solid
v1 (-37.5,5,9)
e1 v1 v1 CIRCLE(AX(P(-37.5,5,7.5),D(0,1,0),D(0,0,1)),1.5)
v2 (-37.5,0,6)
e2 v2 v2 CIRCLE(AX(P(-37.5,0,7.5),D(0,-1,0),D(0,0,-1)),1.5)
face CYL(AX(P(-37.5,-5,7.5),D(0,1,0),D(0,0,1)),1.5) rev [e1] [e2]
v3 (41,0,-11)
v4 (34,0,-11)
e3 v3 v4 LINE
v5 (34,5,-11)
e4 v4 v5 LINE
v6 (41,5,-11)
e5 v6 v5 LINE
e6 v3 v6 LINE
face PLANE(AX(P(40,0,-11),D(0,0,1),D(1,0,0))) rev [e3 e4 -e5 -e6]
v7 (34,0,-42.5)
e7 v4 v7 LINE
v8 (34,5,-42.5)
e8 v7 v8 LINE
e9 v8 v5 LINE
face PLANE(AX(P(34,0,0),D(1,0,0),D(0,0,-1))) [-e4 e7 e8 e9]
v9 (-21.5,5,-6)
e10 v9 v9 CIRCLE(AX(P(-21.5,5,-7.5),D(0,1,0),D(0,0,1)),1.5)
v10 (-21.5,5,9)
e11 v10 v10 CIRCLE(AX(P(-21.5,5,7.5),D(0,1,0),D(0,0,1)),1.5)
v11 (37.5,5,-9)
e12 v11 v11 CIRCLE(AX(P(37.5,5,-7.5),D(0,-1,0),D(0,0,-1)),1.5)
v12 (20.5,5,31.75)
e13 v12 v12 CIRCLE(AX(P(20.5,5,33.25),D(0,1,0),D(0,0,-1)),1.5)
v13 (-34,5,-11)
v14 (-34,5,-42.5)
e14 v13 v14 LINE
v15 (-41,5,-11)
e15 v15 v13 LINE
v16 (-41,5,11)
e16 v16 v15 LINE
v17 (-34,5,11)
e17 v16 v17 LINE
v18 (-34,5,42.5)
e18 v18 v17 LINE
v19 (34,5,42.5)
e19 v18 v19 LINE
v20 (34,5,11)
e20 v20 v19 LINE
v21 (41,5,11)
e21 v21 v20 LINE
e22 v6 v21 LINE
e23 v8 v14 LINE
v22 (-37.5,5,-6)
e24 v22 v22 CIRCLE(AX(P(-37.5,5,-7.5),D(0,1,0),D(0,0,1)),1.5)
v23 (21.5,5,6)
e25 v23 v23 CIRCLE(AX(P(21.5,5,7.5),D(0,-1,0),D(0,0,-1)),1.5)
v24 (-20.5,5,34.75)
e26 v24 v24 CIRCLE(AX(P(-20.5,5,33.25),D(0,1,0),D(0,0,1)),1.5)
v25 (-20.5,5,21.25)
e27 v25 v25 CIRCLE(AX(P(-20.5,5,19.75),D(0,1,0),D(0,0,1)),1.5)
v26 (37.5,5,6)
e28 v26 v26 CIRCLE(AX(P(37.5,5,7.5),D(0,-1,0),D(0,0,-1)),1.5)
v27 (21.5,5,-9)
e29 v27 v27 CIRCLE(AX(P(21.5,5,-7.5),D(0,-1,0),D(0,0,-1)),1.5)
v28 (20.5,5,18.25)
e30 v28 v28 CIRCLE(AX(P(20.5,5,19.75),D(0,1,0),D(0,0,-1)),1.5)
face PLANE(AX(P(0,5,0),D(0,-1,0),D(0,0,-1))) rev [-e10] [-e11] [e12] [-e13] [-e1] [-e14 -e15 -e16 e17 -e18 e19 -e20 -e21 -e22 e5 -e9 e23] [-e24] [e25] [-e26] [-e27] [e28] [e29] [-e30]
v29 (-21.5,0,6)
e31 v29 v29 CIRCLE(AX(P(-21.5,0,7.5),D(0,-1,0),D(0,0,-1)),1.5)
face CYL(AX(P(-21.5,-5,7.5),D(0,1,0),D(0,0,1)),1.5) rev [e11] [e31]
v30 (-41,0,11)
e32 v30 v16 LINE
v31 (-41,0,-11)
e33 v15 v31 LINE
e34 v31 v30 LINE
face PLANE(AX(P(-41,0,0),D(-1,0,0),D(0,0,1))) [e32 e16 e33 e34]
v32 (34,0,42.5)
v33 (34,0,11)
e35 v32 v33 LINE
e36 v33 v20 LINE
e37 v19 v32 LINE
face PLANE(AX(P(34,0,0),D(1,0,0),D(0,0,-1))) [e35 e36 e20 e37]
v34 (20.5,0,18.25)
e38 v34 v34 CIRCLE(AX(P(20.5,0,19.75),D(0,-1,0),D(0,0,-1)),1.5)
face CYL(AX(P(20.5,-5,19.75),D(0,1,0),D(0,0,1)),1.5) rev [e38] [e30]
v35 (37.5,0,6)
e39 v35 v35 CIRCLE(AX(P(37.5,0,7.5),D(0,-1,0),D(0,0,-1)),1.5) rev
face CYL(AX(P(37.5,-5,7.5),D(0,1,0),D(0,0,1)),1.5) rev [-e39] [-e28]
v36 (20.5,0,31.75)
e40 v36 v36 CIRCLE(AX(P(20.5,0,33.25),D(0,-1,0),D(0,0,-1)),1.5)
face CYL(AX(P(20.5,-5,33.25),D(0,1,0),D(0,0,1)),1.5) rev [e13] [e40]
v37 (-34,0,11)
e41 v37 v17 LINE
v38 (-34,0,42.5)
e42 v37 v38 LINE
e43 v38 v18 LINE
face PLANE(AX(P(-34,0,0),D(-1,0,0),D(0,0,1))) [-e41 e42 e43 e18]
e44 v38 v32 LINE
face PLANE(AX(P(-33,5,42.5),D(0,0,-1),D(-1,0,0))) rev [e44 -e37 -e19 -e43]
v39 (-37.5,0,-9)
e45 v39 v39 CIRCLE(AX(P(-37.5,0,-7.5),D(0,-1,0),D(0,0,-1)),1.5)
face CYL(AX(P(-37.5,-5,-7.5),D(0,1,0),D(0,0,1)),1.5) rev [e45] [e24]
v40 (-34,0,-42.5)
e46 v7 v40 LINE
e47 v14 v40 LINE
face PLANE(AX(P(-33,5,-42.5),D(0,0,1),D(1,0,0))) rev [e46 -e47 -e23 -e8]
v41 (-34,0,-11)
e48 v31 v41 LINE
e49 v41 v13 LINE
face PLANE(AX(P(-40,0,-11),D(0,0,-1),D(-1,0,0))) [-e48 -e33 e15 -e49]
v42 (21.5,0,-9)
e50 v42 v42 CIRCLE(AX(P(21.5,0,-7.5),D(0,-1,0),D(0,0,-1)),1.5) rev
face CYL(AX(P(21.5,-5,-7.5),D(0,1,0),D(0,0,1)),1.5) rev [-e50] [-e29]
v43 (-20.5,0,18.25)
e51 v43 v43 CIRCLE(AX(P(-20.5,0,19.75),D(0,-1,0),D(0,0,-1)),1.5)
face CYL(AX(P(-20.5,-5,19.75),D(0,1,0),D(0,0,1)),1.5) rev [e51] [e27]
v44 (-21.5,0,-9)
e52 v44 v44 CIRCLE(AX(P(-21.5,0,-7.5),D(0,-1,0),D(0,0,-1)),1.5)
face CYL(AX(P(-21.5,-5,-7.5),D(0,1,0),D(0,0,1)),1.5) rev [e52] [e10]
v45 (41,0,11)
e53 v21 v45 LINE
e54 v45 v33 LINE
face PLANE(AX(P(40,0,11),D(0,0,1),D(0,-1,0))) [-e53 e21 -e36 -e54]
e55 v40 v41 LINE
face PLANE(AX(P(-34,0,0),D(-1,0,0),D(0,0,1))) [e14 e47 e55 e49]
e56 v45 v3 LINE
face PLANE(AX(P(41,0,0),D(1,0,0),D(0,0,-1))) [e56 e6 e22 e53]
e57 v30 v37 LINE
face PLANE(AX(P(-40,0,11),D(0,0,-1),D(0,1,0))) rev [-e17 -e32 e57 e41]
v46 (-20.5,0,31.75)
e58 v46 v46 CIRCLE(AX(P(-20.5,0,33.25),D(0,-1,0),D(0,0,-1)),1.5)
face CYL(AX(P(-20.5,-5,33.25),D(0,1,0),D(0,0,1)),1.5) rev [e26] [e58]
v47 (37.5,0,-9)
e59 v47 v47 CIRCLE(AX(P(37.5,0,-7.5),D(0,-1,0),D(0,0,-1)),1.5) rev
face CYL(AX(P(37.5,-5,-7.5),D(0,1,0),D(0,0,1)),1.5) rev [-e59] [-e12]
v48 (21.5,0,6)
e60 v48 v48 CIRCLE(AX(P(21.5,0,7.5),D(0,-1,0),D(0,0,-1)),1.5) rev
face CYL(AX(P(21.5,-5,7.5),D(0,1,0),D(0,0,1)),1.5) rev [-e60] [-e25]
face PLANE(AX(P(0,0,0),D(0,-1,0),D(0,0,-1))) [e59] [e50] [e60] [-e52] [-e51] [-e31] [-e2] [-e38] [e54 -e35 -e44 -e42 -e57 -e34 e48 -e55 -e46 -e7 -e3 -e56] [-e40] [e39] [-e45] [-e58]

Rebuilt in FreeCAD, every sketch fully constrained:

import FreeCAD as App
import Part
import Sketcher

V = App.Vector

doc = App.newDocument("Part")
params = doc.addObject("Spreadsheet::Sheet", "Params")
for row, (alias, value) in enumerate([
    ("sketch1_width", "66 mm"),
    ("sketch1_height", "85 mm"),
    ("pad1_length", "5 mm"),
    ("sketch2_width", "5 mm"),
    ("sketch2_height", "22 mm"),
    ("pad2_length", "7 mm"),
    ("sketch3_diameter", "3 mm"),
    ("pocket1_length", "10 mm"),
    ("sketch4_width", "5 mm"),
    ("sketch4_height", "22 mm"),
    ("pad3_length", "1 mm"),
    ("sketch5_width", "5 mm"),
    ("sketch5_height", "22 mm"),
    ("pad4_length", "1 mm"),
    ("sketch6_width", "5 mm"),
    ("sketch6_height", "85 mm"),
    ("pad5_length", "1 mm"),
    ("sketch7_width", "5 mm"),
    ("sketch7_height", "85 mm"),
    ("pad6_length", "1 mm"),
    ("sketch8_diameter", "3 mm"),
    ("pocket2_length", "10 mm"),
], start=1):
    params.set(f"A{row}", alias)
    params.set(f"B{row}", "=" + value)
    params.setAlias(f"B{row}", alias)

body = doc.addObject("PartDesign::Body", "Body")

sketch1 = doc.addObject("Sketcher::SketchObject", "Sketch")
body.addObject(sketch1)
sketch1.AttachmentSupport = (doc.XZ_Plane, [""])
sketch1.MapMode = "FlatFace"
sketch1.addGeometry(Part.LineSegment(V(-33, -42.5, 0), V(-33, 42.5, 0)), False)
sketch1.addGeometry(Part.LineSegment(V(-33, 42.5, 0), V(33, 42.5, 0)), False)
sketch1.addGeometry(Part.LineSegment(V(33, 42.5, 0), V(33, -42.5, 0)), False)
sketch1.addGeometry(Part.LineSegment(V(33, -42.5, 0), V(-33, -42.5, 0)), False)
sketch1.addConstraint(Sketcher.Constraint("Coincident", 0, 2, 1, 1))
sketch1.addConstraint(Sketcher.Constraint("Coincident", 1, 2, 2, 1))
sketch1.addConstraint(Sketcher.Constraint("Coincident", 2, 2, 3, 1))
sketch1.addConstraint(Sketcher.Constraint("Coincident", 3, 2, 0, 1))
sketch1.addConstraint(Sketcher.Constraint("Vertical", 0))
sketch1.addConstraint(Sketcher.Constraint("Horizontal", 1))
sketch1.addConstraint(Sketcher.Constraint("Vertical", 2))
sketch1.addConstraint(Sketcher.Constraint("Horizontal", 3))
sketch1.addConstraint(Sketcher.Constraint("Symmetric", 0, 2, 2, 2, -1, 1))
sketch1.addConstraint(Sketcher.Constraint("DistanceX", 1, 1, 1, 2, 66.0))
sketch1.addConstraint(Sketcher.Constraint("DistanceY", 0, 1, 0, 2, 85.0))
sketch1.setExpression("Constraints[9]", "Params.sketch1_width")
sketch1.setExpression("Constraints[10]", "Params.sketch1_height")
pad1 = doc.addObject("PartDesign::Pad", "Pad")
body.addObject(pad1)
pad1.Profile = sketch1
pad1.setExpression("Length", "Params.pad1_length")
pad1.Reversed = True

sketch2 = doc.addObject("Sketcher::SketchObject", "Sketch001")
body.addObject(sketch2)
sketch2.AttachmentSupport = (doc.YZ_Plane, [""])
sketch2.MapMode = "FlatFace"
sketch2.AttachmentOffset = App.Placement(V(0, 0, -33), App.Rotation())
sketch2.addGeometry(Part.LineSegment(V(5, -11, 0), V(0, -11, 0)), False)
sketch2.addGeometry(Part.LineSegment(V(0, -11, 0), V(0, 11, 0)), False)
sketch2.addGeometry(Part.LineSegment(V(0, 11, 0), V(5, 11, 0)), False)
sketch2.addGeometry(Part.LineSegment(V(5, 11, 0), V(5, -11, 0)), False)
sketch2.addConstraint(Sketcher.Constraint("Coincident", 0, 2, 1, 1))
sketch2.addConstraint(Sketcher.Constraint("Coincident", 1, 2, 2, 1))
sketch2.addConstraint(Sketcher.Constraint("Coincident", 2, 2, 3, 1))
sketch2.addConstraint(Sketcher.Constraint("Coincident", 3, 2, 0, 1))
sketch2.addConstraint(Sketcher.Constraint("Horizontal", 0))
sketch2.addConstraint(Sketcher.Constraint("Vertical", 1))
sketch2.addConstraint(Sketcher.Constraint("Horizontal", 2))
sketch2.addConstraint(Sketcher.Constraint("Vertical", 3))
sketch2.addConstraint(Sketcher.Constraint("Symmetric", 0, 2, 1, 2, -1, 1))
sketch2.addConstraint(Sketcher.Constraint("DistanceX", 0, 2, 0, 1, 5.0))
sketch2.addConstraint(Sketcher.Constraint("DistanceY", 1, 1, 1, 2, 22.0))
sketch2.setExpression("Constraints[9]", "Params.sketch2_width")
sketch2.setExpression("Constraints[10]", "Params.sketch2_height")
pad2 = doc.addObject("PartDesign::Pad", "Pad001")
body.addObject(pad2)
pad2.Profile = sketch2
pad2.setExpression("Length", "Params.pad2_length")
pad2.Reversed = True
doc.recompute()

mirrored = doc.addObject("PartDesign::Mirrored", "Mirrored")
body.addObject(mirrored)
mirrored.Originals = [pad2]
mirrored.MirrorPlane = (doc.YZ_Plane, [""])
body.Tip = mirrored

sketch3 = doc.addObject("Sketcher::SketchObject", "Sketch002")
body.addObject(sketch3)
sketch3.AttachmentSupport = (doc.XZ_Plane, [""])
sketch3.MapMode = "FlatFace"
sketch3.AttachmentOffset = App.Placement(V(0, 0, -5), App.Rotation())
sketch3.addGeometry(Part.Circle(V(-37.5, -7.5, 0), V(0, 0, 1), 1.5), False)
sketch3.addGeometry(Part.Circle(V(-21.5, -7.5, 0), V(0, 0, 1), 1.5), False)
sketch3.addGeometry(Part.Circle(V(-37.5, 7.5, 0), V(0, 0, 1), 1.5), False)
sketch3.addGeometry(Part.Circle(V(-21.5, 7.5, 0), V(0, 0, 1), 1.5), False)
sketch3.addGeometry(Part.Circle(V(21.5, 7.5, 0), V(0, 0, 1), 1.5), False)
sketch3.addGeometry(Part.Circle(V(37.5, 7.5, 0), V(0, 0, 1), 1.5), False)
sketch3.addGeometry(Part.Circle(V(21.5, -7.5, 0), V(0, 0, 1), 1.5), False)
sketch3.addGeometry(Part.Circle(V(37.5, -7.5, 0), V(0, 0, 1), 1.5), False)
sketch3.addConstraint(Sketcher.Constraint("Equal", 0, 1))
sketch3.addConstraint(Sketcher.Constraint("Equal", 1, 2))
sketch3.addConstraint(Sketcher.Constraint("Equal", 2, 3))
sketch3.addConstraint(Sketcher.Constraint("Equal", 3, 4))
sketch3.addConstraint(Sketcher.Constraint("Equal", 4, 5))
sketch3.addConstraint(Sketcher.Constraint("Equal", 5, 6))
sketch3.addConstraint(Sketcher.Constraint("Equal", 6, 7))
sketch3.addConstraint(Sketcher.Constraint("Symmetric", 1, 3, 4, 3, -1, 1))
sketch3.addConstraint(Sketcher.Constraint("Symmetric", 0, 3, 5, 3, -1, 1))
sketch3.addConstraint(Sketcher.Constraint("Symmetric", 3, 3, 6, 3, -1, 1))
sketch3.addConstraint(Sketcher.Constraint("Symmetric", 2, 3, 7, 3, -1, 1))
sketch3.addConstraint(Sketcher.Constraint("Symmetric", 3, 3, 4, 3, -2))
sketch3.addConstraint(Sketcher.Constraint("Symmetric", 2, 3, 5, 3, -2))
sketch3.addConstraint(Sketcher.Constraint("Horizontal", 0, 3, 1, 3))
sketch3.addConstraint(Sketcher.Constraint("Diameter", 0, 3.0))
sketch3.addConstraint(Sketcher.Constraint("DistanceX", 0, 3, 1, 3, 16.0))
sketch3.addConstraint(Sketcher.Constraint("DistanceY", 0, 3, 2, 3, 15.0))
sketch3.addConstraint(Sketcher.Constraint("DistanceX", 3, 3, 4, 3, 43.0))
sketch3.setExpression("Constraints[14]", "Params.sketch3_diameter")
pocket1 = doc.addObject("PartDesign::Pocket", "Pocket")
body.addObject(pocket1)
pocket1.Profile = sketch3
pocket1.setExpression("Length", "Params.pocket1_length")
pocket1.Reversed = True

sketch4 = doc.addObject("Sketcher::SketchObject", "Sketch003")
body.addObject(sketch4)
sketch4.AttachmentSupport = (doc.YZ_Plane, [""])
sketch4.MapMode = "FlatFace"
sketch4.AttachmentOffset = App.Placement(V(0, 0, -40), App.Rotation())
sketch4.addGeometry(Part.LineSegment(V(5, -11, 0), V(0, -11, 0)), False)
sketch4.addGeometry(Part.LineSegment(V(0, -11, 0), V(0, 11, 0)), False)
sketch4.addGeometry(Part.LineSegment(V(0, 11, 0), V(5, 11, 0)), False)
sketch4.addGeometry(Part.LineSegment(V(5, 11, 0), V(5, -11, 0)), False)
sketch4.addConstraint(Sketcher.Constraint("Coincident", 0, 2, 1, 1))
sketch4.addConstraint(Sketcher.Constraint("Coincident", 1, 2, 2, 1))
sketch4.addConstraint(Sketcher.Constraint("Coincident", 2, 2, 3, 1))
sketch4.addConstraint(Sketcher.Constraint("Coincident", 3, 2, 0, 1))
sketch4.addConstraint(Sketcher.Constraint("Horizontal", 0))
sketch4.addConstraint(Sketcher.Constraint("Vertical", 1))
sketch4.addConstraint(Sketcher.Constraint("Horizontal", 2))
sketch4.addConstraint(Sketcher.Constraint("Vertical", 3))
sketch4.addConstraint(Sketcher.Constraint("Symmetric", 0, 2, 1, 2, -1, 1))
sketch4.addConstraint(Sketcher.Constraint("DistanceX", 0, 2, 0, 1, 5.0))
sketch4.addConstraint(Sketcher.Constraint("DistanceY", 1, 1, 1, 2, 22.0))
sketch4.setExpression("Constraints[9]", "Params.sketch4_width")
sketch4.setExpression("Constraints[10]", "Params.sketch4_height")
pad3 = doc.addObject("PartDesign::Pad", "Pad002")
body.addObject(pad3)
pad3.Profile = sketch4
pad3.setExpression("Length", "Params.pad3_length")
pad3.Reversed = True

sketch5 = doc.addObject("Sketcher::SketchObject", "Sketch004")
body.addObject(sketch5)
sketch5.AttachmentSupport = (doc.YZ_Plane, [""])
sketch5.MapMode = "FlatFace"
sketch5.AttachmentOffset = App.Placement(V(0, 0, 40), App.Rotation())
sketch5.addGeometry(Part.LineSegment(V(5, 11, 0), V(0, 11, 0)), False)
sketch5.addGeometry(Part.LineSegment(V(0, 11, 0), V(0, -11, 0)), False)
sketch5.addGeometry(Part.LineSegment(V(0, -11, 0), V(5, -11, 0)), False)
sketch5.addGeometry(Part.LineSegment(V(5, -11, 0), V(5, 11, 0)), False)
sketch5.addConstraint(Sketcher.Constraint("Coincident", 0, 2, 1, 1))
sketch5.addConstraint(Sketcher.Constraint("Coincident", 1, 2, 2, 1))
sketch5.addConstraint(Sketcher.Constraint("Coincident", 2, 2, 3, 1))
sketch5.addConstraint(Sketcher.Constraint("Coincident", 3, 2, 0, 1))
sketch5.addConstraint(Sketcher.Constraint("Horizontal", 0))
sketch5.addConstraint(Sketcher.Constraint("Vertical", 1))
sketch5.addConstraint(Sketcher.Constraint("Horizontal", 2))
sketch5.addConstraint(Sketcher.Constraint("Vertical", 3))
sketch5.addConstraint(Sketcher.Constraint("Symmetric", 0, 2, 1, 2, -1, 1))
sketch5.addConstraint(Sketcher.Constraint("DistanceX", 0, 2, 0, 1, 5.0))
sketch5.addConstraint(Sketcher.Constraint("DistanceY", 1, 2, 1, 1, 22.0))
sketch5.setExpression("Constraints[9]", "Params.sketch5_width")
sketch5.setExpression("Constraints[10]", "Params.sketch5_height")
pad4 = doc.addObject("PartDesign::Pad", "Pad003")
body.addObject(pad4)
pad4.Profile = sketch5
pad4.setExpression("Length", "Params.pad4_length")

sketch6 = doc.addObject("Sketcher::SketchObject", "Sketch005")
body.addObject(sketch6)
sketch6.AttachmentSupport = (doc.YZ_Plane, [""])
sketch6.MapMode = "FlatFace"
sketch6.AttachmentOffset = App.Placement(V(0, 0, -33), App.Rotation())
sketch6.addGeometry(Part.LineSegment(V(5, -42.5, 0), V(0, -42.5, 0)), False)
sketch6.addGeometry(Part.LineSegment(V(0, -42.5, 0), V(0, 42.5, 0)), False)
sketch6.addGeometry(Part.LineSegment(V(0, 42.5, 0), V(5, 42.5, 0)), False)
sketch6.addGeometry(Part.LineSegment(V(5, 42.5, 0), V(5, -42.5, 0)), False)
sketch6.addConstraint(Sketcher.Constraint("Coincident", 0, 2, 1, 1))
sketch6.addConstraint(Sketcher.Constraint("Coincident", 1, 2, 2, 1))
sketch6.addConstraint(Sketcher.Constraint("Coincident", 2, 2, 3, 1))
sketch6.addConstraint(Sketcher.Constraint("Coincident", 3, 2, 0, 1))
sketch6.addConstraint(Sketcher.Constraint("Horizontal", 0))
sketch6.addConstraint(Sketcher.Constraint("Vertical", 1))
sketch6.addConstraint(Sketcher.Constraint("Horizontal", 2))
sketch6.addConstraint(Sketcher.Constraint("Vertical", 3))
sketch6.addConstraint(Sketcher.Constraint("Symmetric", 0, 2, 1, 2, -1, 1))
sketch6.addConstraint(Sketcher.Constraint("DistanceX", 0, 2, 0, 1, 5.0))
sketch6.addConstraint(Sketcher.Constraint("DistanceY", 1, 1, 1, 2, 85.0))
sketch6.setExpression("Constraints[9]", "Params.sketch6_width")
sketch6.setExpression("Constraints[10]", "Params.sketch6_height")
pad5 = doc.addObject("PartDesign::Pad", "Pad004")
body.addObject(pad5)
pad5.Profile = sketch6
pad5.setExpression("Length", "Params.pad5_length")
pad5.Reversed = True

sketch7 = doc.addObject("Sketcher::SketchObject", "Sketch006")
body.addObject(sketch7)
sketch7.AttachmentSupport = (doc.YZ_Plane, [""])
sketch7.MapMode = "FlatFace"
sketch7.AttachmentOffset = App.Placement(V(0, 0, 33), App.Rotation())
sketch7.addGeometry(Part.LineSegment(V(5, 42.5, 0), V(0, 42.5, 0)), False)
sketch7.addGeometry(Part.LineSegment(V(0, 42.5, 0), V(0, -42.5, 0)), False)
sketch7.addGeometry(Part.LineSegment(V(0, -42.5, 0), V(5, -42.5, 0)), False)
sketch7.addGeometry(Part.LineSegment(V(5, -42.5, 0), V(5, 42.5, 0)), False)
sketch7.addConstraint(Sketcher.Constraint("Coincident", 0, 2, 1, 1))
sketch7.addConstraint(Sketcher.Constraint("Coincident", 1, 2, 2, 1))
sketch7.addConstraint(Sketcher.Constraint("Coincident", 2, 2, 3, 1))
sketch7.addConstraint(Sketcher.Constraint("Coincident", 3, 2, 0, 1))
sketch7.addConstraint(Sketcher.Constraint("Horizontal", 0))
sketch7.addConstraint(Sketcher.Constraint("Vertical", 1))
sketch7.addConstraint(Sketcher.Constraint("Horizontal", 2))
sketch7.addConstraint(Sketcher.Constraint("Vertical", 3))
sketch7.addConstraint(Sketcher.Constraint("Symmetric", 0, 2, 1, 2, -1, 1))
sketch7.addConstraint(Sketcher.Constraint("DistanceX", 0, 2, 0, 1, 5.0))
sketch7.addConstraint(Sketcher.Constraint("DistanceY", 1, 2, 1, 1, 85.0))
sketch7.setExpression("Constraints[9]", "Params.sketch7_width")
sketch7.setExpression("Constraints[10]", "Params.sketch7_height")
pad6 = doc.addObject("PartDesign::Pad", "Pad005")
body.addObject(pad6)
pad6.Profile = sketch7
pad6.setExpression("Length", "Params.pad6_length")

sketch8 = doc.addObject("Sketcher::SketchObject", "Sketch007")
body.addObject(sketch8)
sketch8.AttachmentSupport = (doc.XZ_Plane, [""])
sketch8.MapMode = "FlatFace"
sketch8.AttachmentOffset = App.Placement(V(0, 0, -5), App.Rotation())
sketch8.addGeometry(Part.Circle(V(-20.5, 33.25, 0), V(0, 0, 1), 1.5), False)
sketch8.addGeometry(Part.Circle(V(-20.5, 19.75, 0), V(0, 0, 1), 1.5), False)
sketch8.addGeometry(Part.Circle(V(20.5, 33.25, 0), V(0, 0, 1), 1.5), False)
sketch8.addGeometry(Part.Circle(V(20.5, 19.75, 0), V(0, 0, 1), 1.5), False)
sketch8.addConstraint(Sketcher.Constraint("Equal", 0, 1))
sketch8.addConstraint(Sketcher.Constraint("Equal", 1, 2))
sketch8.addConstraint(Sketcher.Constraint("Equal", 2, 3))
sketch8.addConstraint(Sketcher.Constraint("Symmetric", 0, 3, 2, 3, -2))
sketch8.addConstraint(Sketcher.Constraint("Symmetric", 1, 3, 3, 3, -2))
sketch8.addConstraint(Sketcher.Constraint("Vertical", 0, 3, 1, 3))
sketch8.addConstraint(Sketcher.Constraint("Diameter", 0, 3.0))
sketch8.addConstraint(Sketcher.Constraint("DistanceX", 0, 3, 2, 3, 41.0))
sketch8.addConstraint(Sketcher.Constraint("DistanceY", 1, 3, 0, 3, 13.5))
sketch8.addConstraint(Sketcher.Constraint("DistanceY", -1, 1, 0, 3, 33.25))
sketch8.setExpression("Constraints[6]", "Params.sketch8_diameter")
pocket2 = doc.addObject("PartDesign::Pocket", "Pocket001")
body.addObject(pocket2)
pocket2.Profile = sketch8
pocket2.setExpression("Length", "Params.pocket2_length")
pocket2.Reversed = True

doc.recompute()
